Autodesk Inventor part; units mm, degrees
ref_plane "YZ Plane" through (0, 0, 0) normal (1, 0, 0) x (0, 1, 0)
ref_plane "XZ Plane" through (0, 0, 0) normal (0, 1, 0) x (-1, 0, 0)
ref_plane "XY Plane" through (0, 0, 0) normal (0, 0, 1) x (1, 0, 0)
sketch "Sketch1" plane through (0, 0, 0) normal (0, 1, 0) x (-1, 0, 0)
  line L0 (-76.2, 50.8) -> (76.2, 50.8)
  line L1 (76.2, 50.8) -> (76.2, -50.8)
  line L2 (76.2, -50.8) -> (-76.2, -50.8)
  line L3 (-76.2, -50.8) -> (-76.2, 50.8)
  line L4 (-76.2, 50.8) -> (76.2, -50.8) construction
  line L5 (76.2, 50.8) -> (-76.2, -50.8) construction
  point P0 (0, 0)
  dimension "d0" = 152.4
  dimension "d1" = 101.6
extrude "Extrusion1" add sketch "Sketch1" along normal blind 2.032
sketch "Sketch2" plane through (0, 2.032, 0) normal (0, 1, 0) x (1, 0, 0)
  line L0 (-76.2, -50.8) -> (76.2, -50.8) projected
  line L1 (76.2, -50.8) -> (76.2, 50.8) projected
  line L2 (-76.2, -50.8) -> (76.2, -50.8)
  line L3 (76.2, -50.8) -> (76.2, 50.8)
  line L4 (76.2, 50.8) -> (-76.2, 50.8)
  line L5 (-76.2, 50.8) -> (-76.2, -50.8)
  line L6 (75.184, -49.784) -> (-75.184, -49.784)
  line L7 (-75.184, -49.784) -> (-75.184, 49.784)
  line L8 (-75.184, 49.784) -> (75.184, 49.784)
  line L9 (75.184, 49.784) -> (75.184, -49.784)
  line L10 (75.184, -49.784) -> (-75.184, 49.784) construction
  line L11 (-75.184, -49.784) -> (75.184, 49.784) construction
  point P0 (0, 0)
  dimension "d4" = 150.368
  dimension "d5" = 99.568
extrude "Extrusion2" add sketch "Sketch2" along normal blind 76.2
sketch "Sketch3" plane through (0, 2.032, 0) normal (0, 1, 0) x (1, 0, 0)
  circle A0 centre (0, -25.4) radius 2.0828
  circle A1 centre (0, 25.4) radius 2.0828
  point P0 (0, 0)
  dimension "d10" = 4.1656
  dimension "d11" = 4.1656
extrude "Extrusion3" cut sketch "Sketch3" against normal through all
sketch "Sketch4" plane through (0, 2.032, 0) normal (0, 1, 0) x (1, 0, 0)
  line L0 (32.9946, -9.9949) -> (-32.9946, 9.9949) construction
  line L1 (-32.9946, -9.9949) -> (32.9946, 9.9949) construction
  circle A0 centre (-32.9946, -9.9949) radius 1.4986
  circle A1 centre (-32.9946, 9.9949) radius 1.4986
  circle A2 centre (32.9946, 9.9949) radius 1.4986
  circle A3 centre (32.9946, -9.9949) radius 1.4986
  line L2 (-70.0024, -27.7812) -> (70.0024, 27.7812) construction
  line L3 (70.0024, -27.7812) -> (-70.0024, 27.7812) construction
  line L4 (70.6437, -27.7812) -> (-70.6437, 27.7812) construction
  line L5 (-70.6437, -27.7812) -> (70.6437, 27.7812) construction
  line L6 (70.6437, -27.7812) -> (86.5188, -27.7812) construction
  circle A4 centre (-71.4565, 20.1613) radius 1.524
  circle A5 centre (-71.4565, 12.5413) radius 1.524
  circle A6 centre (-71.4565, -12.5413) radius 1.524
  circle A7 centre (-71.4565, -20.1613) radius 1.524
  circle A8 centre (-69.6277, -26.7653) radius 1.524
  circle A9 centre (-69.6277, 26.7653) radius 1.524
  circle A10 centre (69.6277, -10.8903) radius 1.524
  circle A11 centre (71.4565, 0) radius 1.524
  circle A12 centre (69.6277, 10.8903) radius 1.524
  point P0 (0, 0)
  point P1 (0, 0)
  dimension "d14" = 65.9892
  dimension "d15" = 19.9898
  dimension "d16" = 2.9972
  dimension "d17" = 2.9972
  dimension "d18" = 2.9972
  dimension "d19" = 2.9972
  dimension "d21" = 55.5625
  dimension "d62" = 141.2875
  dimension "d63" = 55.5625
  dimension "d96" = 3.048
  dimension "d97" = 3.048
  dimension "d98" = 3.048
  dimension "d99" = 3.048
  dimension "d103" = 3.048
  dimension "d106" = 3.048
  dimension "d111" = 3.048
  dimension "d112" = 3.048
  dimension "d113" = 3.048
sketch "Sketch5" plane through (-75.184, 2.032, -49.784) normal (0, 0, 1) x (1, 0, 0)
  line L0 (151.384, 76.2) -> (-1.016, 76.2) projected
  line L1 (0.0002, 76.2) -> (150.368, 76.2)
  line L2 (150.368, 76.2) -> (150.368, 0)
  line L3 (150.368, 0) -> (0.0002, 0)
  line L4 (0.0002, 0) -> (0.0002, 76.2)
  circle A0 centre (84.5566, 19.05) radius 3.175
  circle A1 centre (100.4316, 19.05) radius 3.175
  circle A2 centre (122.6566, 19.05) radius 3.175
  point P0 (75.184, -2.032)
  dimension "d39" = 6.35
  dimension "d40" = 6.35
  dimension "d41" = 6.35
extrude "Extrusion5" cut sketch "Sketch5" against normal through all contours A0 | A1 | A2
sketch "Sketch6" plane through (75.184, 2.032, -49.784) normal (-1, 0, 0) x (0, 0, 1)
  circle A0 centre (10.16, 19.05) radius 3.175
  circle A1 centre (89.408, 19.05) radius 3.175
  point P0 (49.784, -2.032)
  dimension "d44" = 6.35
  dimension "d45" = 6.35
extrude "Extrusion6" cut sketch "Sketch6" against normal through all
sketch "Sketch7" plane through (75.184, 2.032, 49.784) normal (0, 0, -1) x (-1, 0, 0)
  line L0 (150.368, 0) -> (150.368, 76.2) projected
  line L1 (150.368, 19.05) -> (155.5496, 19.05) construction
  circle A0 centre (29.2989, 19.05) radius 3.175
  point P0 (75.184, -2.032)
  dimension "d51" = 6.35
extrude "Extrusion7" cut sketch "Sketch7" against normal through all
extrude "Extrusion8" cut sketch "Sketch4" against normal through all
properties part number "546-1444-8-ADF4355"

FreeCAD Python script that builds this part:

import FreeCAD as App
import Part
import Sketcher

V = App.Vector
Q = App.Units.Quantity


def add_polygon(sketch, points):
    """Adds a closed chain of lines whose ends are joined by coincident constraints."""
    first, n = sketch.GeometryCount, len(points)
    for a, b in zip(points, points[1:] + points[:1]):
        sketch.addGeometry(Part.LineSegment(App.Vector(*a, 0), App.Vector(*b, 0)), False)
    for i in range(n):
        sketch.addConstraint(Sketcher.Constraint("Coincident", first + i, 2, first + (i + 1) % n, 1))

doc = App.newDocument("Part")
body = doc.addObject("PartDesign::Body", "Body")

# Sketch on XZ plane
sketch1 = body.newObject("Sketcher::SketchObject", "Sketch")
sketch1.AttachmentSupport = (doc.getObject("XZ_Plane"), [""])
sketch1.MapMode = "FlatFace"
add_polygon(sketch1, [(-76, 51), (76, 51), (76, -51), (-76, -51)])  # lines 0-3
sketch1.addConstraint([
    Sketcher.Constraint("Horizontal", 0),
    Sketcher.Constraint("Vertical", 1),
    Sketcher.Constraint("Horizontal", 2),
    Sketcher.Constraint("Vertical", 3),
    Sketcher.Constraint("Symmetric", 0, 2, 2, 2, -1, 1),
    Sketcher.Constraint("DistanceX", 0, 1, 0, 2, Q("6 in")),
    Sketcher.Constraint("DistanceY", 1, 2, 1, 1, Q("4 in")),
])
pad1 = body.newObject("PartDesign::Pad", "Pad")
pad1.Profile = sketch1
pad1.Length = Q("0.08 in")
pad1.Reversed = True

# Sketch on XZ plane
sketch2 = body.newObject("Sketcher::SketchObject", "Sketch001")
sketch2.AttachmentSupport = (doc.getObject("XZ_Plane"), [""])
sketch2.MapMode = "FlatFace"
sketch2.AttachmentOffset = App.Placement(V(0, 0, -0.08 * 25.4), App.Rotation())
add_polygon(sketch2, [(-76, -51), (-76, 51), (76, 51), (76, -51)])  # lines 0-3
add_polygon(sketch2, [(75, -50), (75, 50), (-75, 50), (-75, -50)])  # lines 4-7
sketch2.addConstraint([
    Sketcher.Constraint("Vertical", 0),
    Sketcher.Constraint("Horizontal", 1),
    Sketcher.Constraint("Vertical", 2),
    Sketcher.Constraint("Horizontal", 3),
    Sketcher.Constraint("Vertical", 4),
    Sketcher.Constraint("Horizontal", 5),
    Sketcher.Constraint("Vertical", 6),
    Sketcher.Constraint("Horizontal", 7),
    Sketcher.Constraint("Symmetric", 0, 2, 2, 2, -1, 1),
    Sketcher.Constraint("Symmetric", 4, 2, 6, 2, -1, 1),
    Sketcher.Constraint("DistanceX", 5, 2, 5, 1, Q("5.92 in")),
    Sketcher.Constraint("DistanceY", 4, 1, 4, 2, Q("3.92 in")),
    Sketcher.Constraint("DistanceX", 1, 1, 1, 2, Q("6 in")),
    Sketcher.Constraint("DistanceY", 0, 1, 0, 2, Q("4 in")),
])
pad2 = body.newObject("PartDesign::Pad", "Pad001")
pad2.Profile = sketch2
pad2.Length = Q("3 in")
pad2.Reversed = True

# Sketch on XZ plane
sketch3 = body.newObject("Sketcher::SketchObject", "Sketch002")
sketch3.AttachmentSupport = (doc.getObject("XZ_Plane"), [""])
sketch3.MapMode = "FlatFace"
sketch3.AttachmentOffset = App.Placement(V(0, 0, -0.08 * 25.4), App.Rotation())
sketch3.addGeometry([
    Part.Circle(V(0, 25.4, 0), V(0, 0, 1), 2.1),
    Part.Circle(V(0, -25.4, 0), V(0, 0, 1), 2.1),
], False)
sketch3.addConstraint([
    Sketcher.Constraint("Equal", 0, 1),
    Sketcher.Constraint("Symmetric", 0, 3, 1, 3, -1, 1),
    Sketcher.Constraint("PointOnObject", 0, 3, -2),
    Sketcher.Constraint("Diameter", 0, Q("0.164 in")),
    Sketcher.Constraint("DistanceY", -1, 1, 0, 3, Q("1 in")),
])
pocket1 = body.newObject("PartDesign::Pocket", "Pocket")
pocket1.Profile = sketch3
pocket1.Type = "ThroughAll"
pocket1.Reversed = True

# Sketch on XY plane
sketch4 = body.newObject("Sketcher::SketchObject", "Sketch003")
sketch4.AttachmentSupport = (doc.getObject("XY_Plane"), [""])
sketch4.MapMode = "FlatFace"
sketch4.AttachmentOffset = App.Placement(V(0, 0, -1.96 * 25.4), App.Rotation())
sketch4.addGeometry([
    Part.Circle(V(9.4, 21.1, 0), V(0, 0, 1), 3.2),
    Part.Circle(V(25.2, 21.1, 0), V(0, 0, 1), 3.2),
    Part.Circle(V(47.5, 21.1, 0), V(0, 0, 1), 3.2),
], False)
sketch4.addConstraint([
    Sketcher.Constraint("Equal", 0, 1),
    Sketcher.Constraint("Equal", 1, 2),
    Sketcher.Constraint("Horizontal", 0, 3, 1, 3),
    Sketcher.Constraint("Horizontal", 1, 3, 2, 3),
    Sketcher.Constraint("Diameter", 0, Q("0.25 in")),
    Sketcher.Constraint("DistanceX", 0, 3, 2, 3, Q("1.5 in")),
    Sketcher.Constraint("DistanceY", -1, 1, 0, 3, Q("0.83 in")),
    Sketcher.Constraint("DistanceX", -1, 1, 0, 3, Q("0.369 in")),
    Sketcher.Constraint("DistanceX", -1, 1, 1, 3, Q("0.994 in")),
])
pocket2 = body.newObject("PartDesign::Pocket", "Pocket001")
pocket2.Profile = sketch4
pocket2.Type = "ThroughAll"

# Sketch on YZ plane
sketch5 = body.newObject("Sketcher::SketchObject", "Sketch004")
sketch5.AttachmentSupport = (doc.getObject("YZ_Plane"), [""])
sketch5.MapMode = "FlatFace"
sketch5.AttachmentOffset = App.Placement(V(0, 0, 2.96 * 25.4), App.Rotation())
sketch5.addGeometry([
    Part.Circle(V(21.1, -39.6, 0), V(0, 0, 1), 3.2),
    Part.Circle(V(21.1, 39.6, 0), V(0, 0, 1), 3.2),
], False)
sketch5.addConstraint([
    Sketcher.Constraint("Equal", 0, 1),
    Sketcher.Constraint("Symmetric", 0, 3, 1, 3, -1),
    Sketcher.Constraint("Diameter", 0, Q("0.25 in")),
    Sketcher.Constraint("DistanceX", -1, 1, 0, 3, Q("0.83 in")),
    Sketcher.Constraint("DistanceY", 0, 3, -1, 1, Q("1.56 in")),
])
pocket3 = body.newObject("PartDesign::Pocket", "Pocket002")
pocket3.Profile = sketch5
pocket3.Type = "ThroughAll"
pocket3.Reversed = True

# Sketch on XY plane
sketch6 = body.newObject("Sketcher::SketchObject", "Sketch005")
sketch6.AttachmentSupport = (doc.getObject("XY_Plane"), [""])
sketch6.MapMode = "FlatFace"
sketch6.AttachmentOffset = App.Placement(V(0, 0, 1.96 * 25.4), App.Rotation())
sketch6.addGeometry(Part.Circle(V(45.9, 21.1, 0), V(0, 0, 1), 3.2), False)
sketch6.addConstraint([
    Sketcher.Constraint("Diameter", 0, Q("0.25 in")),
    Sketcher.Constraint("DistanceY", -1, 1, 0, 3, Q("0.83 in")),
    Sketcher.Constraint("DistanceX", -1, 1, 0, 3, Q("1.8065 in")),
])
pocket4 = body.newObject("PartDesign::Pocket", "Pocket003")
pocket4.Profile = sketch6
pocket4.Type = "ThroughAll"
pocket4.Reversed = True

# Sketch on XZ plane
sketch7 = body.newObject("Sketcher::SketchObject", "Sketch006")
sketch7.AttachmentSupport = (doc.getObject("XZ_Plane"), [""])
sketch7.MapMode = "FlatFace"
sketch7.AttachmentOffset = App.Placement(V(0, 0, -0.08 * 25.4), App.Rotation())
sketch7.addGeometry([
    Part.Circle(V(-33, 10, 0), V(0, 0, 1), 1.5),  # 0
    Part.Circle(V(-33, -10, 0), V(0, 0, 1), 1.5),  # 1
    Part.Circle(V(33, -10, 0), V(0, 0, 1), 1.5),  # 2
    Part.Circle(V(33, 10, 0), V(0, 0, 1), 1.5),  # 3
    Part.Circle(V(-71.5, -20.2, 0), V(0, 0, 1), 1.5),  # 4
    Part.Circle(V(-71.5, -12.5, 0), V(0, 0, 1), 1.5),  # 5
    Part.Circle(V(-71.5, 12.5, 0), V(0, 0, 1), 1.5),  # 6
    Part.Circle(V(-71.5, 20.2, 0), V(0, 0, 1), 1.5),  # 7
    Part.Circle(V(-69.6, 26.8, 0), V(0, 0, 1), 1.5),  # 8
    Part.Circle(V(-69.6, -26.8, 0), V(0, 0, 1), 1.5),  # 9
    Part.Circle(V(69.6, 10.9, 0), V(0, 0, 1), 1.5),  # 10
    Part.Circle(V(71.5, 0, 0), V(0, 0, 1), 1.5),  # 11
    Part.Circle(V(69.6, -10.9, 0), V(0, 0, 1), 1.5),  # 12
], False)
sketch7.addConstraint([
    Sketcher.Constraint("Equal", 0, 1),
    Sketcher.Constraint("Equal", 1, 2),
    Sketcher.Constraint("Equal", 2, 3),
    Sketcher.Constraint("Equal", 4, 5),
    Sketcher.Constraint("Equal", 5, 6),
    Sketcher.Constraint("Equal", 6, 7),
    Sketcher.Constraint("Equal", 7, 8),
    Sketcher.Constraint("Equal", 8, 9),
    Sketcher.Constraint("Equal", 9, 10),
    Sketcher.Constraint("Equal", 10, 11),
    Sketcher.Constraint("Equal", 11, 12),
    Sketcher.Constraint("Symmetric", 0, 3, 2, 3, -1, 1),
    Sketcher.Constraint("Symmetric", 1, 3, 3, 3, -1, 1),
    Sketcher.Constraint("Symmetric", 1, 3, 2, 3, -2),
    Sketcher.Constraint("Symmetric", 5, 3, 6, 3, -1),
    Sketcher.Constraint("Symmetric", 4, 3, 7, 3, -1),
    Sketcher.Constraint("Symmetric", 8, 3, 9, 3, -1),
    Sketcher.Constraint("Symmetric", 10, 3, 12, 3, -1),
    Sketcher.Constraint("PointOnObject", 11, 3, -1),
    Sketcher.Constraint("Vertical", 4, 3, 5, 3),
    Sketcher.Constraint("Diameter", 4, Q("0.12 in")),
    Sketcher.Constraint("Diameter", 0, Q("0.118 in")),
    Sketcher.Constraint("DistanceY", 1, 3, 0, 3, Q("0.787 in")),
    Sketcher.Constraint("DistanceX", 1, 3, 2, 3, Q("2.598 in")),
    Sketcher.Constraint("DistanceY", 4, 3, 5, 3, Q("0.3 in")),
    Sketcher.Constraint("DistanceY", 7, 3, 8, 3, Q("0.26 in")),
    Sketcher.Constraint("DistanceX", 7, 3, 8, 3, Q("0.072 in")),
    Sketcher.Constraint("DistanceY", 10, 3, 8, 3, Q("0.625 in")),
    Sketcher.Constraint("DistanceX", 10, 3, 11, 3, Q("0.072 in")),
    Sketcher.Constraint("DistanceY", 5, 3, 6, 3, Q("0.9875 in")),
    Sketcher.Constraint("DistanceX", 8, 3, 10, 3, Q("5.4825 in")),
    Sketcher.Constraint("DistanceX", 4, 3, -1, 1, 71.4565),
])
pocket5 = body.newObject("PartDesign::Pocket", "Pocket004")
pocket5.Profile = sketch7
pocket5.Type = "ThroughAll"
pocket5.Reversed = True

doc.recompute()
